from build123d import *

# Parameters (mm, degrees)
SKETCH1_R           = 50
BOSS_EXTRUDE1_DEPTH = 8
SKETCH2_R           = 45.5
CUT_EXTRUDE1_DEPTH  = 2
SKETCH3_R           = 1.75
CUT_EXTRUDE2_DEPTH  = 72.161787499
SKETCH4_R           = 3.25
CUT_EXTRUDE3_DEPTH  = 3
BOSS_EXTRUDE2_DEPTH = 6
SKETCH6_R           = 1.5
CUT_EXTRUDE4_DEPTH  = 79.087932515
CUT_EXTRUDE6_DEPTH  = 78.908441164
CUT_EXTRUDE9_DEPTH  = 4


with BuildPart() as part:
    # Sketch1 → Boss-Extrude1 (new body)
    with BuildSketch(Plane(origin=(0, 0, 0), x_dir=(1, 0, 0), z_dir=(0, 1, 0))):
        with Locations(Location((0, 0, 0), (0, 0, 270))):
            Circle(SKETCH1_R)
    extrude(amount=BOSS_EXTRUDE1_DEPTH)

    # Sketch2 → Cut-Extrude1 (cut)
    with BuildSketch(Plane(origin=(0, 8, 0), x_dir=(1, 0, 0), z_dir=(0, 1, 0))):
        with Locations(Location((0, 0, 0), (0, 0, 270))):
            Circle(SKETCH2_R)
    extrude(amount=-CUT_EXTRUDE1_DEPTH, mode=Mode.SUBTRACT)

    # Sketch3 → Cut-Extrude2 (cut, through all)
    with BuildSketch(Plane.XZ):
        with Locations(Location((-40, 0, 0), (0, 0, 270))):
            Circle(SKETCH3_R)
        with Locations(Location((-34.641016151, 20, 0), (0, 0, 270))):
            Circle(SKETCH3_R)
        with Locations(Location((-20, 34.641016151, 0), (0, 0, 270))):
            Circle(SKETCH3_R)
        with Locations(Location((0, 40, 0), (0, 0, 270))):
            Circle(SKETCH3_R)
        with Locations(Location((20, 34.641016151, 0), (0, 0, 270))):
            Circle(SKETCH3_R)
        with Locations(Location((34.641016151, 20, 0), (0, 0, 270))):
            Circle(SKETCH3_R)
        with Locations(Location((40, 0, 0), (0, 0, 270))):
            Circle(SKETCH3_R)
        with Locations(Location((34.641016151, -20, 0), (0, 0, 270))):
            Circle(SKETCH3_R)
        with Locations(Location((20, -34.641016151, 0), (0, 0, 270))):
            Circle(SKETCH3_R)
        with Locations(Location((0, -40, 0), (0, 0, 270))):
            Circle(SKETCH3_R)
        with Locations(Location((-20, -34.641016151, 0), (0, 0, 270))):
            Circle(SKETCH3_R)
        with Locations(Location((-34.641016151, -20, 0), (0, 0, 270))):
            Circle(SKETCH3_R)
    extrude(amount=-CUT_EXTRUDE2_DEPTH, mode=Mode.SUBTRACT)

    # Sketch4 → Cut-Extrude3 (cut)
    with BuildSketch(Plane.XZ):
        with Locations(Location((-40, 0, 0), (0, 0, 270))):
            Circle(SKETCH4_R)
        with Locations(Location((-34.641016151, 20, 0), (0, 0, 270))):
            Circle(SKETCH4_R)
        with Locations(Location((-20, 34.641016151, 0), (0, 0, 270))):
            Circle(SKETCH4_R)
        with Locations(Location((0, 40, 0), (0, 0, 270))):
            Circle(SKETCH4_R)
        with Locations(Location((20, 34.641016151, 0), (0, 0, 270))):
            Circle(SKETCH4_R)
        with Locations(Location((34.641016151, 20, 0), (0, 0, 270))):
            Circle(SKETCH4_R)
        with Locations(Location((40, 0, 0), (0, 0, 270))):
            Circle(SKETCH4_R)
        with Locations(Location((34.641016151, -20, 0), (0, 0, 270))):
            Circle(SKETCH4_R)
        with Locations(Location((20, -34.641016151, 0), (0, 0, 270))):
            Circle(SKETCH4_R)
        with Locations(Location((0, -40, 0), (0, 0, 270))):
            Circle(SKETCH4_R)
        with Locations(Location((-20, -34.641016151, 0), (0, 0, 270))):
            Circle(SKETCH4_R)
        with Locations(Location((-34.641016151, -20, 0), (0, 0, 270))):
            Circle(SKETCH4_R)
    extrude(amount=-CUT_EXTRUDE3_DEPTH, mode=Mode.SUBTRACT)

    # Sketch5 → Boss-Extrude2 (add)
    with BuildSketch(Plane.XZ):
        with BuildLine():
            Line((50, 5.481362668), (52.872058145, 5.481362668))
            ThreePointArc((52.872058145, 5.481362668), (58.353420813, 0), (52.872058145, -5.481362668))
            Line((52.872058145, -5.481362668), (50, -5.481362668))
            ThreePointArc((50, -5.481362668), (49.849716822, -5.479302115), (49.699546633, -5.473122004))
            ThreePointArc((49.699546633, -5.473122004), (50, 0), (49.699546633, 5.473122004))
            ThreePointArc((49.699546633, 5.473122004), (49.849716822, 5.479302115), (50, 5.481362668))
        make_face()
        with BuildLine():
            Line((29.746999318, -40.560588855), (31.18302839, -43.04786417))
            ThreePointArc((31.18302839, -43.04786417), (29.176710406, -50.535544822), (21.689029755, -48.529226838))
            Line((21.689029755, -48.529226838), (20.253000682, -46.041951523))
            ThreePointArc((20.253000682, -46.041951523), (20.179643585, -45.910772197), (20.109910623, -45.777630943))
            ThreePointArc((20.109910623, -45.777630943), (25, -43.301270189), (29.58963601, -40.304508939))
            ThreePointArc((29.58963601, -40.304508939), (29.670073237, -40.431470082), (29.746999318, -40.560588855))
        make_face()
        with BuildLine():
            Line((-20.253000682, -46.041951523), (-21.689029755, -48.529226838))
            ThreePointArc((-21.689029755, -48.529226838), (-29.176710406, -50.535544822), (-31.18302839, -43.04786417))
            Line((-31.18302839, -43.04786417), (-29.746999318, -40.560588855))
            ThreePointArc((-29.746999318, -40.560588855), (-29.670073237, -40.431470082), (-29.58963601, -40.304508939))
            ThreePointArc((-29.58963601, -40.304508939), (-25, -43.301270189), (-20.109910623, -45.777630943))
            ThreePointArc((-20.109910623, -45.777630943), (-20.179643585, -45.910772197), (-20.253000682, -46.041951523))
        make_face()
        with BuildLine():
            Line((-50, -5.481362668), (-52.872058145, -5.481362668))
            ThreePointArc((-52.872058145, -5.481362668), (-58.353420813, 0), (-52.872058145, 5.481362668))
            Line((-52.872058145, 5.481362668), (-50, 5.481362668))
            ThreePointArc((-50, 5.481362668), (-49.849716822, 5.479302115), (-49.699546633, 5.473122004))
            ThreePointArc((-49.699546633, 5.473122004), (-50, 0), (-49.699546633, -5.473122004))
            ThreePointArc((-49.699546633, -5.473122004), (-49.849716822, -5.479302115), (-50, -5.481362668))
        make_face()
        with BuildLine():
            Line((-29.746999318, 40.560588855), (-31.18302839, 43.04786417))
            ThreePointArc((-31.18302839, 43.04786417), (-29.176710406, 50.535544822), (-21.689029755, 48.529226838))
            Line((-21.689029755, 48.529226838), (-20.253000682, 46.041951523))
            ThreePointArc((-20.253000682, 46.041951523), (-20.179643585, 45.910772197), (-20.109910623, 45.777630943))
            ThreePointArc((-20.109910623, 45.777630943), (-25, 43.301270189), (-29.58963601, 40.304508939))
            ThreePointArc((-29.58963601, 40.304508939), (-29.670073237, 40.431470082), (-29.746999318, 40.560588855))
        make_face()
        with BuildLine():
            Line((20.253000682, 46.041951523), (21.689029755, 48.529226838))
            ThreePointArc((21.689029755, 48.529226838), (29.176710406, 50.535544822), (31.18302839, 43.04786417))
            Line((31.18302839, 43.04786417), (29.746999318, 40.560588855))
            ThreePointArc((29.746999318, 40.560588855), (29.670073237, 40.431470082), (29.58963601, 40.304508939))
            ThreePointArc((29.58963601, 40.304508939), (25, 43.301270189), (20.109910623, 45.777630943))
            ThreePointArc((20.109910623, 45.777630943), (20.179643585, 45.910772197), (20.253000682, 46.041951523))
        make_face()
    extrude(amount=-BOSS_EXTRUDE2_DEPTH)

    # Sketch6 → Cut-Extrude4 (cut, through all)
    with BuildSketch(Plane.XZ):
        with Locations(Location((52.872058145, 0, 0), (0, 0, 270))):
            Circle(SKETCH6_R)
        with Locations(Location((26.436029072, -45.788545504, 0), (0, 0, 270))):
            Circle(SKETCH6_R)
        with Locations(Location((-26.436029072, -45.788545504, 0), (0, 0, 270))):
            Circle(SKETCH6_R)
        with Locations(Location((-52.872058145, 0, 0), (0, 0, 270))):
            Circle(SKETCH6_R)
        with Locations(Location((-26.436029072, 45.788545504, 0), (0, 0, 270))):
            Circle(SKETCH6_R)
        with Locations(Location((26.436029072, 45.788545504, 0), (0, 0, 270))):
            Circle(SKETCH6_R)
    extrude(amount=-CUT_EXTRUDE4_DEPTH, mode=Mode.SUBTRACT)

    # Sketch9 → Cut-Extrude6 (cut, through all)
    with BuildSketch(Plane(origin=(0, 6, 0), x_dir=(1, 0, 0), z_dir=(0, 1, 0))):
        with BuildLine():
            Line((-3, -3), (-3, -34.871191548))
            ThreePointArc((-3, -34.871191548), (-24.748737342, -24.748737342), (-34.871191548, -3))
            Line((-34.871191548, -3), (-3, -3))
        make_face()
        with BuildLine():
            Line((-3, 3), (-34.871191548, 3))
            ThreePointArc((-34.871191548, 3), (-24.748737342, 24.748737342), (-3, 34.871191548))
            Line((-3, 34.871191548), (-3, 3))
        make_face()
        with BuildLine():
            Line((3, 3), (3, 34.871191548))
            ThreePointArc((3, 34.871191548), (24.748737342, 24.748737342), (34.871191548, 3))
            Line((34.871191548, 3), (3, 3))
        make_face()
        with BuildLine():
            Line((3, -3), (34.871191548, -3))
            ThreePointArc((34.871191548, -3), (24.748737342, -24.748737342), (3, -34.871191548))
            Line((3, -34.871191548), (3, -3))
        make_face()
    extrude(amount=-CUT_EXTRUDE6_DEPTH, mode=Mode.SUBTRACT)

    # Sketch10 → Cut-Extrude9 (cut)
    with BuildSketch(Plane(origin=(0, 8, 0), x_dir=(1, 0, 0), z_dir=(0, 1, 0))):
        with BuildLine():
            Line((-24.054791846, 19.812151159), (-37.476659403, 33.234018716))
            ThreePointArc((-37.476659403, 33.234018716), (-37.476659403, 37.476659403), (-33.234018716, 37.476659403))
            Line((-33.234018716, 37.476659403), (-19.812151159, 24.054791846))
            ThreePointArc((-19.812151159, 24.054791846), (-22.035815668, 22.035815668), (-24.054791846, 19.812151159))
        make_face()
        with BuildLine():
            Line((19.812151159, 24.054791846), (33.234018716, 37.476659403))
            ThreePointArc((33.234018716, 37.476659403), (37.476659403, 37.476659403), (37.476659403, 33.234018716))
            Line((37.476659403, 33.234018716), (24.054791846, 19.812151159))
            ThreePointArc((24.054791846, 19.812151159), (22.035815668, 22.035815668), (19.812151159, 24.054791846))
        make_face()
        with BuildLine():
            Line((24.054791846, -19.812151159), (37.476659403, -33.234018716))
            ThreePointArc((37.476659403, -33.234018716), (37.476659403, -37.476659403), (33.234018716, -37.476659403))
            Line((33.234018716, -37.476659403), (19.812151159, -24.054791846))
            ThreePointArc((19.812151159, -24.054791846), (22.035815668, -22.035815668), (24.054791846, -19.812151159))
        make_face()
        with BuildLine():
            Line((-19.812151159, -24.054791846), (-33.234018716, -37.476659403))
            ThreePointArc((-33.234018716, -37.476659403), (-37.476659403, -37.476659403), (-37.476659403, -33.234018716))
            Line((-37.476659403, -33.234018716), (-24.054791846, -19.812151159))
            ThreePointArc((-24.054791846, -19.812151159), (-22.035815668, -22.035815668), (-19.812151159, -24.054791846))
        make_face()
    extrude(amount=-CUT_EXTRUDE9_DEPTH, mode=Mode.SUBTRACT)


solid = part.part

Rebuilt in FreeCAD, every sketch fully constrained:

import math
import FreeCAD as App
import Part
import Sketcher
from FreeCAD import Vector
Q = App.Units.Quantity

doc = App.newDocument("Part")
body = doc.addObject("PartDesign::Body", "Body")

sketch1 = body.newObject("Sketcher::SketchObject", "Sketch")
sketch1.AttachmentSupport = (doc.getObject("XZ_Plane"), [""])
sketch1.MapMode = "FlatFace"
sketch1.addGeometry(Part.Circle(Vector(0, 0, 0), Vector(0, 0, 1), 50), False)
sketch1.addConstraint([
    Sketcher.Constraint("Coincident", 0, 3, -1, 1),
    Sketcher.Constraint("Diameter", 0, 100.0),
])
pad1 = body.newObject("PartDesign::Pad", "Pad")
pad1.Profile = sketch1
pad1.Length = 8
pad1.Reversed = True

sketch2 = body.newObject("Sketcher::SketchObject", "Sketch001")
sketch2.AttachmentSupport = (doc.getObject("XZ_Plane"), [""])
sketch2.MapMode = "FlatFace"
sketch2.AttachmentOffset = App.Placement(Vector(0, 0, -8), App.Rotation())
sketch2.addGeometry(Part.Circle(Vector(0, 0, 0), Vector(0, 0, 1), 46), False)
sketch2.addConstraint([
    Sketcher.Constraint("Coincident", 0, 3, -1, 1),
    Sketcher.Constraint("Diameter", 0, 91.0),
])
pocket1 = body.newObject("PartDesign::Pocket", "Pocket")
pocket1.Profile = sketch2
pocket1.Length = 2
pocket1.Reversed = True

sketch3 = body.newObject("Sketcher::SketchObject", "Sketch002")
sketch3.AttachmentSupport = (doc.getObject("XZ_Plane"), [""])
sketch3.MapMode = "FlatFace"
sketch3.addGeometry([
    Part.Circle(Vector(-40, 0, 0), Vector(0, 0, 1), 1.8),
    Part.Circle(Vector(-34.6, 20, 0), Vector(0, 0, 1), 1.8),
    Part.Circle(Vector(-20, 34.6, 0), Vector(0, 0, 1), 1.8),
    Part.Circle(Vector(0, 40, 0), Vector(0, 0, 1), 1.8),
    Part.Circle(Vector(20, 34.6, 0), Vector(0, 0, 1), 1.8),
    Part.Circle(Vector(34.6, 20, 0), Vector(0, 0, 1), 1.8),
    Part.Circle(Vector(40, 0, 0), Vector(0, 0, 1), 1.8),
    Part.Circle(Vector(34.6, -20, 0), Vector(0, 0, 1), 1.8),
    Part.Circle(Vector(20, -34.6, 0), Vector(0, 0, 1), 1.8),
    Part.Circle(Vector(0, -40, 0), Vector(0, 0, 1), 1.8),
    Part.Circle(Vector(-20, -34.6, 0), Vector(0, 0, 1), 1.8),
    Part.Circle(Vector(-34.6, -20, 0), Vector(0, 0, 1), 1.8),
], False)
sketch3.addConstraint([
    Sketcher.Constraint("Equal", 0, 1),
    Sketcher.Constraint("Equal", 1, 2),
    Sketcher.Constraint("Equal", 2, 3),
    Sketcher.Constraint("Equal", 3, 4),
    Sketcher.Constraint("Equal", 4, 5),
    Sketcher.Constraint("Equal", 5, 6),
    Sketcher.Constraint("Equal", 6, 7),
    Sketcher.Constraint("Equal", 7, 8),
    Sketcher.Constraint("Equal", 8, 9),
    Sketcher.Constraint("Equal", 9, 10),
    Sketcher.Constraint("Equal", 10, 11),
    Sketcher.Constraint("Symmetric", 0, 3, 6, 3, -1, 1),
    Sketcher.Constraint("Symmetric", 1, 3, 7, 3, -1, 1),
    Sketcher.Constraint("Symmetric", 2, 3, 8, 3, -1, 1),
    Sketcher.Constraint("Symmetric", 3, 3, 9, 3, -1, 1),
    Sketcher.Constraint("Symmetric", 4, 3, 10, 3, -1, 1),
    Sketcher.Constraint("Symmetric", 5, 3, 11, 3, -1, 1),
    Sketcher.Constraint("Symmetric", 2, 3, 4, 3, -2),
    Sketcher.Constraint("Symmetric", 1, 3, 5, 3, -2),
    Sketcher.Constraint("PointOnObject", 0, 3, -1),
    Sketcher.Constraint("PointOnObject", 3, 3, -2),
    Sketcher.Constraint("Diameter", 0, 3.5),
    Sketcher.Constraint("DistanceX", 0, 3, -1, 1, 40.0),
    Sketcher.Constraint("DistanceY", -1, 1, 1, 3, 20.0),
    Sketcher.Constraint("DistanceX", 2, 3, -1, 1, 20.0),
    Sketcher.Constraint("DistanceY", -1, 1, 3, 3, 40.0),
    Sketcher.Constraint("DistanceX", 1, 3, -1, 1, 34.641016),
    Sketcher.Constraint("DistanceY", -1, 1, 2, 3, 34.641016),
])
pocket2 = body.newObject("PartDesign::Pocket", "Pocket001")
pocket2.Profile = sketch3
pocket2.Type = "ThroughAll"

sketch4 = body.newObject("Sketcher::SketchObject", "Sketch003")
sketch4.AttachmentSupport = (doc.getObject("XZ_Plane"), [""])
sketch4.MapMode = "FlatFace"
sketch4.addGeometry([
    Part.Circle(Vector(-40, 0, 0), Vector(0, 0, 1), 3.2),
    Part.Circle(Vector(-34.6, 20, 0), Vector(0, 0, 1), 3.2),
    Part.Circle(Vector(-20, 34.6, 0), Vector(0, 0, 1), 3.2),
    Part.Circle(Vector(0, 40, 0), Vector(0, 0, 1), 3.2),
    Part.Circle(Vector(20, 34.6, 0), Vector(0, 0, 1), 3.2),
    Part.Circle(Vector(34.6, 20, 0), Vector(0, 0, 1), 3.2),
    Part.Circle(Vector(40, 0, 0), Vector(0, 0, 1), 3.2),
    Part.Circle(Vector(34.6, -20, 0), Vector(0, 0, 1), 3.2),
    Part.Circle(Vector(20, -34.6, 0), Vector(0, 0, 1), 3.2),
    Part.Circle(Vector(0, -40, 0), Vector(0, 0, 1), 3.2),
    Part.Circle(Vector(-20, -34.6, 0), Vector(0, 0, 1), 3.2),
    Part.Circle(Vector(-34.6, -20, 0), Vector(0, 0, 1), 3.2),
], False)
sketch4.addConstraint([
    Sketcher.Constraint("Equal", 0, 1),
    Sketcher.Constraint("Equal", 1, 2),
    Sketcher.Constraint("Equal", 2, 3),
    Sketcher.Constraint("Equal", 3, 4),
    Sketcher.Constraint("Equal", 4, 5),
    Sketcher.Constraint("Equal", 5, 6),
    Sketcher.Constraint("Equal", 6, 7),
    Sketcher.Constraint("Equal", 7, 8),
    Sketcher.Constraint("Equal", 8, 9),
    Sketcher.Constraint("Equal", 9, 10),
    Sketcher.Constraint("Equal", 10, 11),
    Sketcher.Constraint("Symmetric", 0, 3, 6, 3, -1, 1),
    Sketcher.Constraint("Symmetric", 1, 3, 7, 3, -1, 1),
    Sketcher.Constraint("Symmetric", 2, 3, 8, 3, -1, 1),
    Sketcher.Constraint("Symmetric", 3, 3, 9, 3, -1, 1),
    Sketcher.Constraint("Symmetric", 4, 3, 10, 3, -1, 1),
    Sketcher.Constraint("Symmetric", 5, 3, 11, 3, -1, 1),
    Sketcher.Constraint("Symmetric", 2, 3, 4, 3, -2),
    Sketcher.Constraint("Symmetric", 1, 3, 5, 3, -2),
    Sketcher.Constraint("PointOnObject", 0, 3, -1),
    Sketcher.Constraint("PointOnObject", 3, 3, -2),
    Sketcher.Constraint("Diameter", 0, 6.5),
    Sketcher.Constraint("DistanceX", 0, 3, -1, 1, 40.0),
    Sketcher.Constraint("DistanceY", -1, 1, 1, 3, 20.0),
    Sketcher.Constraint("DistanceX", 2, 3, -1, 1, 20.0),
    Sketcher.Constraint("DistanceY", -1, 1, 3, 3, 40.0),
    Sketcher.Constraint("DistanceX", 1, 3, -1, 1, 34.641016),
    Sketcher.Constraint("DistanceY", -1, 1, 2, 3, 34.641016),
])
pocket3 = body.newObject("PartDesign::Pocket", "Pocket002")
pocket3.Profile = sketch4
pocket3.Length = 3

sketch5 = body.newObject("Sketcher::SketchObject", "Sketch004")
sketch5.AttachmentSupport = (doc.getObject("XZ_Plane"), [""])
sketch5.MapMode = "FlatFace"
sketch5.addGeometry([
    Part.LineSegment(Vector(52.87, 5.48, 0), Vector(50, 5.48, 0)),
    Part.ArcOfCircle(Part.Circle(Vector(50, 0, 0), Vector(0, 0, 1), 5.48), math.radians(90), math.radians(93.14)),
    Part.ArcOfCircle(Part.Circle(Vector(0, 0, 0), Vector(0, 0, 1), 50), math.radians(-6.28), math.radians(6.28)),
    Part.ArcOfCircle(Part.Circle(Vector(50, 0, 0), Vector(0, 0, 1), 5.48), math.radians(-93.14), math.radians(-90)),
    Part.LineSegment(Vector(50, -5.48, 0), Vector(52.87, -5.48, 0)),
    Part.ArcOfCircle(Part.Circle(Vector(52.87, 0, 0), Vector(0, 0, 1), 5.48), math.radians(-90), math.radians(90)),
    Part.LineSegment(Vector(31.18, -43.05, 0), Vector(29.75, -40.56, 0)),
    Part.ArcOfCircle(Part.Circle(Vector(25, -43.3, 0), Vector(0, 0, 1), 5.48), math.radians(30), math.radians(33.14)),
    Part.ArcOfCircle(Part.Circle(Vector(0, 0, 0), Vector(0, 0, 1), 50), math.radians(-66.28), math.radians(-53.72)),
    Part.ArcOfCircle(Part.Circle(Vector(25, -43.3, 0), Vector(0, 0, 1), 5.48), math.radians(-153.14), math.radians(-150)),
    Part.LineSegment(Vector(20.25, -46.04, 0), Vector(21.69, -48.53, 0)),
    Part.ArcOfCircle(Part.Circle(Vector(26.44, -45.79, 0), Vector(0, 0, 1), 5.48), math.radians(-150), math.radians(30)),
    Part.LineSegment(Vector(-21.69, -48.53, 0), Vector(-20.25, -46.04, 0)),
    Part.ArcOfCircle(Part.Circle(Vector(-25, -43.3, 0), Vector(0, 0, 1), 5.48), math.radians(-30), math.radians(-26.86)),
    Part.ArcOfCircle(Part.Circle(Vector(0, 0, 0), Vector(0, 0, 1), 50), math.radians(-126.28), math.radians(-113.72)),
    Part.ArcOfCircle(Part.Circle(Vector(-25, -43.3, 0), Vector(0, 0, 1), 5.48), math.radians(146.86), math.radians(150)),
    Part.LineSegment(Vector(-29.75, -40.56, 0), Vector(-31.18, -43.05, 0)),
    Part.ArcOfCircle(Part.Circle(Vector(-26.44, -45.79, 0), Vector(0, 0, 1), 5.48), math.radians(150), math.radians(330)),
    Part.LineSegment(Vector(-52.87, -5.48, 0), Vector(-50, -5.48, 0)),
    Part.ArcOfCircle(Part.Circle(Vector(-50, 0, 0), Vector(0, 0, 1), 5.48), math.radians(-90), math.radians(-86.86)),
    Part.ArcOfCircle(Part.Circle(Vector(0, 0, 0), Vector(0, 0, 1), 50), math.radians(173.72), math.radians(186.28)),
    Part.ArcOfCircle(Part.Circle(Vector(-50, 0, 0), Vector(0, 0, 1), 5.48), math.radians(86.86), math.radians(90)),
    Part.LineSegment(Vector(-50, 5.48, 0), Vector(-52.87, 5.48, 0)),
    Part.ArcOfCircle(Part.Circle(Vector(-52.87, 0, 0), Vector(0, 0, 1), 5.48), math.radians(90), math.radians(270)),
    Part.LineSegment(Vector(-31.18, 43.05, 0), Vector(-29.75, 40.56, 0)),
    Part.ArcOfCircle(Part.Circle(Vector(-25, 43.3, 0), Vector(0, 0, 1), 5.48), math.radians(-150), math.radians(-146.86)),
    Part.ArcOfCircle(Part.Circle(Vector(0, 0, 0), Vector(0, 0, 1), 50), math.radians(113.72), math.radians(126.28)),
    Part.ArcOfCircle(Part.Circle(Vector(-25, 43.3, 0), Vector(0, 0, 1), 5.48), math.radians(26.86), math.radians(30)),
    Part.LineSegment(Vector(-20.25, 46.04, 0), Vector(-21.69, 48.53, 0)),
    Part.ArcOfCircle(Part.Circle(Vector(-26.44, 45.79, 0), Vector(0, 0, 1), 5.48), math.radians(30), math.radians(210)),
    Part.LineSegment(Vector(21.69, 48.53, 0), Vector(20.25, 46.04, 0)),
    Part.ArcOfCircle(Part.Circle(Vector(25, 43.3, 0), Vector(0, 0, 1), 5.48), math.radians(150), math.radians(153.14)),
    Part.ArcOfCircle(Part.Circle(Vector(0, 0, 0), Vector(0, 0, 1), 50), math.radians(53.72), math.radians(66.28)),
    Part.ArcOfCircle(Part.Circle(Vector(25, 43.3, 0), Vector(0, 0, 1), 5.48), math.radians(-33.14), math.radians(-30)),
    Part.LineSegment(Vector(29.75, 40.56, 0), Vector(31.18, 43.05, 0)),
    Part.ArcOfCircle(Part.Circle(Vector(26.44, 45.79, 0), Vector(0, 0, 1), 5.48), math.radians(-30), math.radians(150)),
], False)
sketch5.addConstraint([
    Sketcher.Constraint("Tangent", 0, 2, 1, 1),
    Sketcher.Constraint("Coincident", 1, 2, 2, 2),
    Sketcher.Constraint("Coincident", 2, 1, 3, 1),
    Sketcher.Constraint("Tangent", 3, 2, 4, 1),
    Sketcher.Constraint("Tangent", 4, 2, 5, 1),
    Sketcher.Constraint("Tangent", 5, 2, 0, 1),
    Sketcher.Constraint("Tangent", 6, 2, 7, 1),
    Sketcher.Constraint("Coincident", 7, 2, 8, 2),
    Sketcher.Constraint("Coincident", 8, 1, 9, 1),
    Sketcher.Constraint("Tangent", 9, 2, 10, 1),
    Sketcher.Constraint("Tangent", 10, 2, 11, 1),
    Sketcher.Constraint("Tangent", 11, 2, 6, 1),
    Sketcher.Constraint("Tangent", 12, 2, 13, 1),
    Sketcher.Constraint("Coincident", 13, 2, 14, 2),
    Sketcher.Constraint("Coincident", 14, 1, 15, 1),
    Sketcher.Constraint("Tangent", 15, 2, 16, 1),
    Sketcher.Constraint("Tangent", 16, 2, 17, 1),
    Sketcher.Constraint("Tangent", 17, 2, 12, 1),
    Sketcher.Constraint("Tangent", 18, 2, 19, 1),
    Sketcher.Constraint("Coincident", 19, 2, 20, 2),
    Sketcher.Constraint("Coincident", 20, 1, 21, 1),
    Sketcher.Constraint("Tangent", 21, 2, 22, 1),
    Sketcher.Constraint("Tangent", 22, 2, 23, 1),
    Sketcher.Constraint("Tangent", 23, 2, 18, 1),
    Sketcher.Constraint("Tangent", 24, 2, 25, 1),
    Sketcher.Constraint("Coincident", 25, 2, 26, 2),
    Sketcher.Constraint("Coincident", 26, 1, 27, 1),
    Sketcher.Constraint("Tangent", 27, 2, 28, 1),
    Sketcher.Constraint("Tangent", 28, 2, 29, 1),
    Sketcher.Constraint("Tangent", 29, 2, 24, 1),
    Sketcher.Constraint("Tangent", 30, 2, 31, 1),
    Sketcher.Constraint("Coincident", 31, 2, 32, 2),
    Sketcher.Constraint("Coincident", 32, 1, 33, 1),
    Sketcher.Constraint("Tangent", 33, 2, 34, 1),
    Sketcher.Constraint("Tangent", 34, 2, 35, 1),
    Sketcher.Constraint("Tangent", 35, 2, 30, 1),
    Sketcher.Constraint("Horizontal", 0),
    Sketcher.Constraint("Horizontal", 4),
    Sketcher.Constraint("Horizontal", 18),
    Sketcher.Constraint("Horizontal", 22),
    Sketcher.Constraint("Coincident", 2, 3, -1, 1),
    Sketcher.Constraint("Coincident", 8, 3, -1, 1),
    Sketcher.Constraint("Coincident", 14, 3, -1, 1),
    Sketcher.Constraint("Coincident", 20, 3, -1, 1),
    Sketcher.Constraint("Coincident", 26, 3, -1, 1),
    Sketcher.Constraint("Coincident", 32, 3, -1, 1),
    Sketcher.Constraint("Coincident", 3, 3, 1, 3),
    Sketcher.Constraint("Coincident", 9, 3, 7, 3),
    Sketcher.Constraint("Coincident", 15, 3, 13, 3),
    Sketcher.Constraint("Coincident", 21, 3, 19, 3),
    Sketcher.Constraint("Coincident", 27, 3, 25, 3),
    Sketcher.Constraint("Coincident", 33, 3, 31, 3),
    Sketcher.Constraint("Equal", 1, 3),
    Sketcher.Constraint("Equal", 5, 7),
    Sketcher.Constraint("Equal", 2, 8),
    Sketcher.Constraint("Equal", 7, 9),
    Sketcher.Constraint("Equal", 9, 11),
    Sketcher.Constraint("Equal", 11, 13),
    Sketcher.Constraint("Equal", 8, 14),
    Sketcher.Constraint("Equal", 13, 15),
    Sketcher.Constraint("Equal", 15, 17),
    Sketcher.Constraint("Equal", 17, 19),
    Sketcher.Constraint("Equal", 14, 20),
    Sketcher.Constraint("Equal", 19, 21),
    Sketcher.Constraint("Equal", 23, 25),
    Sketcher.Constraint("Equal", 20, 26),
    Sketcher.Constraint("Equal", 25, 27),
    Sketcher.Constraint("Equal", 27, 29),
    Sketcher.Constraint("Equal", 29, 31),
    Sketcher.Constraint("Equal", 26, 32),
    Sketcher.Constraint("Equal", 31, 33),
    Sketcher.Constraint("Equal", 33, 35),
    Sketcher.Constraint("Symmetric", 1, 3, 19, 3, -1, 1),
    Sketcher.Constraint("Symmetric", 7, 3, 25, 3, -1, 1),
    Sketcher.Constraint("Symmetric", 11, 3, 29, 3, -1, 1),
    Sketcher.Constraint("Symmetric", 13, 3, 31, 3, -1, 1),
    Sketcher.Constraint("Symmetric", 17, 3, 35, 3, -1, 1),
    Sketcher.Constraint("Symmetric", 7, 3, 13, 3, -2),
    Sketcher.Constraint("Symmetric", 11, 3, 17, 3, -2),
    Sketcher.Constraint("Symmetric", 5, 3, 23, 3, -2),
    Sketcher.Constraint("Radius", 2, 50.0),
    Sketcher.Constraint("Angle", 6, Q("120 deg")),
    Sketcher.Constraint("DistanceX", -1, 1, 1, 3, 50.0),
    Sketcher.Constraint("DistanceX", -1, 1, 7, 3, 24.999999),
    Sketcher.Constraint("Radius", 1, 5.481362),
    Sketcher.Constraint("DistanceX", 0, 2, 0, 1, 2.872058),
    Sketcher.Constraint("Distance", 6, 2.872058),
    Sketcher.Constraint("DistanceY", 7, 3, -1, 1, 43.301271),
])
pad2 = body.newObject("PartDesign::Pad", "Pad001")
pad2.Profile = sketch5
pad2.Length = 6
pad2.Reversed = True

sketch6 = body.newObject("Sketcher::SketchObject", "Sketch005")
sketch6.AttachmentSupport = (doc.getObject("XZ_Plane"), [""])
sketch6.MapMode = "FlatFace"
sketch6.addGeometry([
    Part.Circle(Vector(52.9, 0, 0), Vector(0, 0, 1), 1.5),
    Part.Circle(Vector(26.4, -45.8, 0), Vector(0, 0, 1), 1.5),
    Part.Circle(Vector(-26.4, -45.8, 0), Vector(0, 0, 1), 1.5),
    Part.Circle(Vector(-52.9, 0, 0), Vector(0, 0, 1), 1.5),
    Part.Circle(Vector(-26.4, 45.8, 0), Vector(0, 0, 1), 1.5),
    Part.Circle(Vector(26.4, 45.8, 0), Vector(0, 0, 1), 1.5),
], False)
sketch6.addConstraint([
    Sketcher.Constraint("Equal", 0, 1),
    Sketcher.Constraint("Equal", 1, 2),
    Sketcher.Constraint("Equal", 2, 3),
    Sketcher.Constraint("Equal", 3, 4),
    Sketcher.Constraint("Equal", 4, 5),
    Sketcher.Constraint("Symmetric", 0, 3, 3, 3, -1, 1),
    Sketcher.Constraint("Symmetric", 1, 3, 4, 3, -1, 1),
    Sketcher.Constraint("Symmetric", 2, 3, 5, 3, -1, 1),
    Sketcher.Constraint("Symmetric", 1, 3, 2, 3, -2),
    Sketcher.Constraint("PointOnObject", 0, 3, -1),
    Sketcher.Constraint("Diameter", 0, 3.0),
    Sketcher.Constraint("DistanceX", -1, 1, 0, 3, 52.872058),
    Sketcher.Constraint("DistanceX", -1, 1, 1, 3, 26.436029),
    Sketcher.Constraint("DistanceY", 2, 3, 4, 3, 91.577091),
])
pocket4 = body.newObject("PartDesign::Pocket", "Pocket003")
pocket4.Profile = sketch6
pocket4.Type = "ThroughAll"

sketch7 = body.newObject("Sketcher::SketchObject", "Sketch006")
sketch7.AttachmentSupport = (doc.getObject("XZ_Plane"), [""])
sketch7.MapMode = "FlatFace"
sketch7.AttachmentOffset = App.Placement(Vector(0, 0, -6), App.Rotation())
sketch7.addGeometry([
    Part.LineSegment(Vector(-3, 35, 0), Vector(-3, 3, 0)),
    Part.LineSegment(Vector(-3, 3, 0), Vector(-35, 3, 0)),
    Part.ArcOfCircle(Part.Circle(Vector(0, 0, 0), Vector(0, 0, 1), 35), math.radians(95), math.radians(175)),
    Part.LineSegment(Vector(-35, -3, 0), Vector(-3, -3, 0)),
    Part.LineSegment(Vector(-3, -3, 0), Vector(-3, -35, 0)),
    Part.ArcOfCircle(Part.Circle(Vector(0, 0, 0), Vector(0, 0, 1), 35), math.radians(-175), math.radians(-95)),
    Part.LineSegment(Vector(3, -35, 0), Vector(3, -3, 0)),
    Part.LineSegment(Vector(3, -3, 0), Vector(35, -3, 0)),
    Part.ArcOfCircle(Part.Circle(Vector(0, 0, 0), Vector(0, 0, 1), 35), math.radians(-85), math.radians(-5)),
    Part.LineSegment(Vector(35, 3, 0), Vector(3, 3, 0)),
    Part.LineSegment(Vector(3, 3, 0), Vector(3, 35, 0)),
    Part.ArcOfCircle(Part.Circle(Vector(0, 0, 0), Vector(0, 0, 1), 35), math.radians(5), math.radians(85)),
], False)
sketch7.addConstraint([
    Sketcher.Constraint("Coincident", 0, 2, 1, 1),
    Sketcher.Constraint("Coincident", 1, 2, 2, 2),
    Sketcher.Constraint("Coincident", 2, 1, 0, 1),
    Sketcher.Constraint("Coincident", 3, 2, 4, 1),
    Sketcher.Constraint("Coincident", 4, 2, 5, 2),
    Sketcher.Constraint("Coincident", 5, 1, 3, 1),
    Sketcher.Constraint("Coincident", 6, 2, 7, 1),
    Sketcher.Constraint("Coincident", 7, 2, 8, 2),
    Sketcher.Constraint("Coincident", 8, 1, 6, 1),
    Sketcher.Constraint("Coincident", 9, 2, 10, 1),
    Sketcher.Constraint("Coincident", 10, 2, 11, 2),
    Sketcher.Constraint("Coincident", 11, 1, 9, 1),
    Sketcher.Constraint("Vertical", 0),
    Sketcher.Constraint("Horizontal", 1),
    Sketcher.Constraint("Horizontal", 3),
    Sketcher.Constraint("Vertical", 4),
    Sketcher.Constraint("Vertical", 6),
    Sketcher.Constraint("Horizontal", 7),
    Sketcher.Constraint("Horizontal", 9),
    Sketcher.Constraint("Vertical", 10),
    Sketcher.Constraint("Coincident", 2, 3, -1, 1),
    Sketcher.Constraint("Coincident", 5, 3, -1, 1),
    Sketcher.Constraint("Coincident", 8, 3, -1, 1),
    Sketcher.Constraint("Coincident", 11, 3, -1, 1),
    Sketcher.Constraint("Equal", 2, 5),
    Sketcher.Constraint("Equal", 5, 8),
    Sketcher.Constraint("Equal", 8, 11),
    Sketcher.Constraint("Symmetric", 0, 2, 6, 2, -1, 1),
    Sketcher.Constraint("Symmetric", 3, 2, 9, 2, -1, 1),
    Sketcher.Constraint("Symmetric", 3, 2, 6, 2, -2),
    Sketcher.Constraint("Equal", 9, 0),
    Sketcher.Constraint("Radius", 2, 35.0),
    Sketcher.Constraint("DistanceX", 0, 2, -1, 1, 3.0),
])
pocket5 = body.newObject("PartDesign::Pocket", "Pocket004")
pocket5.Profile = sketch7
pocket5.Type = "ThroughAll"
pocket5.Reversed = True

sketch8 = body.newObject("Sketcher::SketchObject", "Sketch007")
sketch8.AttachmentSupport = (doc.getObject("XZ_Plane"), [""])
sketch8.MapMode = "FlatFace"
sketch8.AttachmentOffset = App.Placement(Vector(0, 0, -8), App.Rotation())
sketch8.addGeometry([
    Part.LineSegment(Vector(-37.5, -33.2, 0), Vector(-24.1, -19.8, 0)),
    Part.ArcOfCircle(Part.Circle(Vector(0, 0, 0), Vector(0, 0, 1), 31.2), math.radians(-140.52), math.radians(-129.48)),
    Part.LineSegment(Vector(-19.8, -24.1, 0), Vector(-33.2, -37.5, 0)),
    Part.ArcOfCircle(Part.Circle(Vector(-35.4, -35.4, 0), Vector(0, 0, 1), 3), math.radians(135), math.radians(315)),
    Part.LineSegment(Vector(33.2, -37.5, 0), Vector(19.8, -24.1, 0)),
    Part.ArcOfCircle(Part.Circle(Vector(0, 0, 0), Vector(0, 0, 1), 31.2), math.radians(-50.52), math.radians(-39.48)),
    Part.LineSegment(Vector(24.1, -19.8, 0), Vector(37.5, -33.2, 0)),
    Part.ArcOfCircle(Part.Circle(Vector(35.4, -35.4, 0), Vector(0, 0, 1), 3), math.radians(-135), math.radians(45)),
    Part.LineSegment(Vector(37.5, 33.2, 0), Vector(24.1, 19.8, 0)),
    Part.ArcOfCircle(Part.Circle(Vector(0, 0, 0), Vector(0, 0, 1), 31.2), math.radians(39.48), math.radians(50.52)),
    Part.LineSegment(Vector(19.8, 24.1, 0), Vector(33.2, 37.5, 0)),
    Part.ArcOfCircle(Part.Circle(Vector(35.4, 35.4, 0), Vector(0, 0, 1), 3), math.radians(-45), math.radians(135)),
    Part.LineSegment(Vector(-33.2, 37.5, 0), Vector(-19.8, 24.1, 0)),
    Part.ArcOfCircle(Part.Circle(Vector(0, 0, 0), Vector(0, 0, 1), 31.2), math.radians(129.48), math.radians(140.52)),
    Part.LineSegment(Vector(-24.1, 19.8, 0), Vector(-37.5, 33.2, 0)),
    Part.ArcOfCircle(Part.Circle(Vector(-35.4, 35.4, 0), Vector(0, 0, 1), 3), math.radians(45), math.radians(225)),
], False)
sketch8.addConstraint([
    Sketcher.Constraint("Coincident", 0, 2, 1, 1),
    Sketcher.Constraint("Coincident", 1, 2, 2, 1),
    Sketcher.Constraint("Tangent", 2, 2, 3, 2),
    Sketcher.Constraint("Tangent", 3, 1, 0, 1),
    Sketcher.Constraint("Coincident", 4, 2, 5, 1),
    Sketcher.Constraint("Coincident", 5, 2, 6, 1),
    Sketcher.Constraint("Tangent", 6, 2, 7, 2),
    Sketcher.Constraint("Tangent", 7, 1, 4, 1),
    Sketcher.Constraint("Coincident", 8, 2, 9, 1),
    Sketcher.Constraint("Coincident", 9, 2, 10, 1),
    Sketcher.Constraint("Tangent", 10, 2, 11, 2),
    Sketcher.Constraint("Tangent", 11, 1, 8, 1),
    Sketcher.Constraint("Coincident", 12, 2, 13, 1),
    Sketcher.Constraint("Coincident", 13, 2, 14, 1),
    Sketcher.Constraint("Tangent", 14, 2, 15, 2),
    Sketcher.Constraint("Tangent", 15, 1, 12, 1),
    Sketcher.Constraint("Coincident", 1, 3, -1, 1),
    Sketcher.Constraint("Coincident", 5, 3, -1, 1),
    Sketcher.Constraint("Coincident", 9, 3, -1, 1),
    Sketcher.Constraint("Coincident", 13, 3, -1, 1),
    Sketcher.Constraint("Equal", 1, 5),
    Sketcher.Constraint("Equal", 3, 7),
    Sketcher.Constraint("Equal", 5, 9),
    Sketcher.Constraint("Equal", 7, 11),
    Sketcher.Constraint("Equal", 9, 13),
    Sketcher.Constraint("Equal", 11, 15),
    Sketcher.Constraint("Symmetric", 3, 3, 11, 3, -1, 1),
    Sketcher.Constraint("Symmetric", 7, 3, 15, 3, -1, 1),
    Sketcher.Constraint("Symmetric", 3, 3, 7, 3, -2),
    Sketcher.Constraint("Parallel", 0, 2),
    Sketcher.Constraint("Perpendicular", 2, 4),
    Sketcher.Constraint("Parallel", 4, 6),
    Sketcher.Constraint("Perpendicular", 6, 8),
    Sketcher.Constraint("Parallel", 8, 10),
    Sketcher.Constraint("Perpendicular", 10, 12),
    Sketcher.Constraint("Parallel", 12, 14),
    Sketcher.Constraint("Horizontal", 1, 2, 4, 2),
    Sketcher.Constraint("Equal", 0, 2),
    Sketcher.Constraint("Radius", 3, 3.0),
    Sketcher.Constraint("Radius", 1, 31.163349),
    Sketcher.Constraint("DistanceX", 3, 3, -1, 1, 35.355339),
])
pocket6 = body.newObject("PartDesign::Pocket", "Pocket005")
pocket6.Profile = sketch8
pocket6.Length = 4
pocket6.Reversed = True

doc.recompute()
